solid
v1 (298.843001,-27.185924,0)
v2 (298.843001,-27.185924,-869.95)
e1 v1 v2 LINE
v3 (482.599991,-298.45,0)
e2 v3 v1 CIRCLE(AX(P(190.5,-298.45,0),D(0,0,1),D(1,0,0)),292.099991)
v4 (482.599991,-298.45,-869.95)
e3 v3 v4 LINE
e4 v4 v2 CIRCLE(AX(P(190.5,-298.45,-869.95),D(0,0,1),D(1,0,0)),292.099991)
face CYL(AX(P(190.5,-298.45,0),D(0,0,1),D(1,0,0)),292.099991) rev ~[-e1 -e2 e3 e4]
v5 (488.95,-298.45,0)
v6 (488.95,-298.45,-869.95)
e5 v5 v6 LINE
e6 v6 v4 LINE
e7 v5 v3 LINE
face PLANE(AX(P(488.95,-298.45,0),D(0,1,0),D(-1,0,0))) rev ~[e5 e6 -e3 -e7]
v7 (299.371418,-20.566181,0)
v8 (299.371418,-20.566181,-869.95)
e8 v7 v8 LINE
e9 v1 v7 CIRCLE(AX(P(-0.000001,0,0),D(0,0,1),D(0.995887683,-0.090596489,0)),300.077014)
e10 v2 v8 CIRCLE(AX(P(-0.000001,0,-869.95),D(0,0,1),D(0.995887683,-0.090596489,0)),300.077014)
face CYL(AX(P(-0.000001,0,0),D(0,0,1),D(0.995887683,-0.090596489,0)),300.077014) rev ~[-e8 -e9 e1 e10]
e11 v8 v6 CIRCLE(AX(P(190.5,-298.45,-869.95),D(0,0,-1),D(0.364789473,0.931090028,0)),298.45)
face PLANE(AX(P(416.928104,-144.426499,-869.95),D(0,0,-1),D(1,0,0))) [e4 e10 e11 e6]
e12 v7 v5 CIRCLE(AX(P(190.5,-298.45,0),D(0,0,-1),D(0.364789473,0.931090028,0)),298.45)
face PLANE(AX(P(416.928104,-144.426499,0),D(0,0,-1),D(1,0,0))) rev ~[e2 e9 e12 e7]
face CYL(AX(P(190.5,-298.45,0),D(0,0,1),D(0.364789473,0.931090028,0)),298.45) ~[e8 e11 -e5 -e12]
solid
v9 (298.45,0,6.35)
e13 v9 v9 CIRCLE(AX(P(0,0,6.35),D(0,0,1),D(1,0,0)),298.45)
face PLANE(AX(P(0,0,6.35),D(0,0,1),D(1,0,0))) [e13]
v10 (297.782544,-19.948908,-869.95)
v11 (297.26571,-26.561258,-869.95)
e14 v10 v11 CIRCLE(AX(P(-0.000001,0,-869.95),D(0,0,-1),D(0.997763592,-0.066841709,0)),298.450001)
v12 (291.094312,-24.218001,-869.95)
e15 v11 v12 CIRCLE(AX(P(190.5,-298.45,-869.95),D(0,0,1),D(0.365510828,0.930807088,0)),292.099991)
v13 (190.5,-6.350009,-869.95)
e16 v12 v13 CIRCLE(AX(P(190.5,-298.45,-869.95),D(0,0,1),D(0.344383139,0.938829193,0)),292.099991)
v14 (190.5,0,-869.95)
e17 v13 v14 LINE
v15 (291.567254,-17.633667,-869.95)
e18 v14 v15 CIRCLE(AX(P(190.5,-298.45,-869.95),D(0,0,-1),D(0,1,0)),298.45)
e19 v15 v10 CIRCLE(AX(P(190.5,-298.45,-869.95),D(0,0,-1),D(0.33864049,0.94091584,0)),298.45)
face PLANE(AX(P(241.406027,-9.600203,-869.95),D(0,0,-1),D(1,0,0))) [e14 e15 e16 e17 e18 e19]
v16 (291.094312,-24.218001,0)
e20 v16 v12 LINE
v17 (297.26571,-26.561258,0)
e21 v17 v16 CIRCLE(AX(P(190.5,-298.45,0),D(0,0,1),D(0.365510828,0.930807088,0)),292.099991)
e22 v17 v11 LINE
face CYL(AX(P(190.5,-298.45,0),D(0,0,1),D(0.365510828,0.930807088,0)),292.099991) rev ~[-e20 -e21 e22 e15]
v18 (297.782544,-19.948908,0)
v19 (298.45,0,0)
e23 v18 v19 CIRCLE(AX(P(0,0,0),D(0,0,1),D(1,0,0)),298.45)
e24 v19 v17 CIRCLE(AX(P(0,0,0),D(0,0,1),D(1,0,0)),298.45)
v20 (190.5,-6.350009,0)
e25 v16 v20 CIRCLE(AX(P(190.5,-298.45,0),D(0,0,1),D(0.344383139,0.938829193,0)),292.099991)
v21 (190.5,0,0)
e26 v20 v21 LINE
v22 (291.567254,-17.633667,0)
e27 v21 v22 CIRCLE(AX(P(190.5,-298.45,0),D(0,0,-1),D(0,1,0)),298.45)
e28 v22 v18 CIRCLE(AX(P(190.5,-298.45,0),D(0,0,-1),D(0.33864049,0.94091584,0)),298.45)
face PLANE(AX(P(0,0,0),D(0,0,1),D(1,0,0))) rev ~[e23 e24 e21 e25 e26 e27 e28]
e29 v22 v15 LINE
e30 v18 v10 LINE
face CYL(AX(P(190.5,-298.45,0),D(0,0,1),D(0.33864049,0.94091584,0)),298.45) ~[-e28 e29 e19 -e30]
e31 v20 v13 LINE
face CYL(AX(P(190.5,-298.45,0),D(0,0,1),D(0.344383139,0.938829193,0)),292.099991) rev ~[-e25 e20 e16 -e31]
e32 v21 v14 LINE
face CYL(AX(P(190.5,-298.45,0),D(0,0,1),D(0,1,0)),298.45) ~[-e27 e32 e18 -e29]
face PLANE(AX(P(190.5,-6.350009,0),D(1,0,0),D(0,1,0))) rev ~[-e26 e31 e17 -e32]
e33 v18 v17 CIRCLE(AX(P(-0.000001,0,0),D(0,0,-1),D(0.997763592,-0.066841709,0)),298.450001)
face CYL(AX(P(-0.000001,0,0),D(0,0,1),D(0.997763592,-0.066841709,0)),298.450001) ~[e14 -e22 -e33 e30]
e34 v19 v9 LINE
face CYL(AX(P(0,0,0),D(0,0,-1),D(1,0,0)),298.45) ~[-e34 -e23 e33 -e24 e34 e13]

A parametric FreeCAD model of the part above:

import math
import FreeCAD as App
import Part
import Sketcher
from FreeCAD import Vector
Q = App.Units.Quantity

doc = App.newDocument("Part")
params = doc.addObject("Spreadsheet::Sheet", "Params")
for row, (alias, value) in enumerate([
    ("sketch1_diameter", "23.5 in"),
    ("pad1_length", "0.25 in"),
    ("sketch2_radius", "11.75 in"),
    ("pad2_length", "34.25 in"),
    ("sketch3_radius", "11.75 in"),
    ("pad3_length", "34.25 in"),
], start=1):
    params.set(f"A{row}", alias)
    params.set(f"B{row}", "=" + value)
    params.setAlias(f"B{row}", alias)

body = doc.addObject("PartDesign::Body", "Body")

sketch1 = body.newObject("Sketcher::SketchObject", "Sketch")
sketch1.AttachmentSupport = (doc.getObject("XY_Plane"), [""])
sketch1.MapMode = "FlatFace"
sketch1.addGeometry(Part.Circle(Vector(0, 0, 0), Vector(0, 0, 1), 298), False)
sketch1.addConstraint(Sketcher.Constraint("Coincident", 0, 3, -1, 1))
sketch1.addConstraint(Sketcher.Constraint("Diameter", 0, Q("23.5 in")))
sketch1.setExpression("Constraints[1]", "Params.sketch1_diameter")
pad1 = body.newObject("PartDesign::Pad", "Pad")
pad1.Profile = sketch1
pad1.setExpression("Length", "Params.pad1_length")

sketch2 = body.newObject("Sketcher::SketchObject", "Sketch001")
sketch2.AttachmentSupport = (doc.getObject("XY_Plane"), [""])
sketch2.MapMode = "FlatFace"
sketch2.addGeometry(Part.LineSegment(Vector(190, -6, 0), Vector(190, 0, 0)), False)
sketch2.addGeometry(Part.ArcOfCircle(Part.Circle(Vector(190, -298, 0), Vector(0, 0, 1), 298), math.radians(70.21), math.radians(90)), False)
sketch2.addGeometry(Part.ArcOfCircle(Part.Circle(Vector(190, -298, 0), Vector(0, 0, 1), 298), math.radians(68.93), math.radians(70.21)), False)
sketch2.addGeometry(Part.ArcOfCircle(Part.Circle(Vector(0, 0, 0), Vector(0, 0, 1), 298), math.radians(-5.11), math.radians(-3.83)), False)
sketch2.addGeometry(Part.ArcOfCircle(Part.Circle(Vector(190, -298, 0), Vector(0, 0, 1), 292), math.radians(68.56), math.radians(69.86)), False)
sketch2.addGeometry(Part.ArcOfCircle(Part.Circle(Vector(190, -298, 0), Vector(0, 0, 1), 292), math.radians(70), math.radians(90)), False)
sketch2.addConstraint(Sketcher.Constraint("Coincident", 0, 2, 1, 2))
sketch2.addConstraint(Sketcher.Constraint("Tangent", 1, 1, 2, 2))
sketch2.addConstraint(Sketcher.Constraint("Coincident", 2, 1, 3, 2))
sketch2.addConstraint(Sketcher.Constraint("Coincident", 3, 1, 4, 1))
sketch2.addConstraint(Sketcher.Constraint("Tangent", 4, 2, 5, 1))
sketch2.addConstraint(Sketcher.Constraint("Coincident", 5, 2, 0, 1))
sketch2.addConstraint(Sketcher.Constraint("Vertical", 0))
sketch2.addConstraint(Sketcher.Constraint("Coincident", 3, 3, -1, 1))
sketch2.addConstraint(Sketcher.Constraint("Coincident", 4, 3, 1, 3))
sketch2.addConstraint(Sketcher.Constraint("Equal", 1, 2))
sketch2.addConstraint(Sketcher.Constraint("Equal", 2, 3))
sketch2.addConstraint(Sketcher.Constraint("Equal", 4, 5))
sketch2.addConstraint(Sketcher.Constraint("PointOnObject", 0, 2, -1))
sketch2.addConstraint(Sketcher.Constraint("Vertical", 5, 3, 0, 2))
sketch2.addConstraint(Sketcher.Constraint("Radius", 1, Q("11.75 in")))
sketch2.addConstraint(Sketcher.Constraint("DistanceX", -1, 1, 1, 3, Q("7.5 in")))
sketch2.addConstraint(Sketcher.Constraint("Radius", 4, Q("292.099991 mm")))
sketch2.addConstraint(Sketcher.Constraint("DistanceY", 4, 2, -1, 1, Q("24.218001 mm")))
sketch2.addConstraint(Sketcher.Constraint("DistanceX", 1, 1, 2, 1, Q("6.21529 mm")))
sketch2.setExpression("Constraints[14]", "Params.sketch2_radius")
pad2 = body.newObject("PartDesign::Pad", "Pad001")
pad2.Profile = sketch2
pad2.setExpression("Length", "Params.pad2_length")
pad2.Reversed = True
body2 = doc.addObject("PartDesign::Body", "Body001")

sketch3 = body2.newObject("Sketcher::SketchObject", "Sketch002")
sketch3.AttachmentSupport = (doc.getObject("XY_Plane001"), [""])
sketch3.MapMode = "FlatFace"
sketch3.addGeometry(Part.ArcOfCircle(Part.Circle(Vector(0, 0, 0), Vector(0, 0, 1), 300), math.radians(-5.2), math.radians(-3.93)), False)
sketch3.addGeometry(Part.ArcOfCircle(Part.Circle(Vector(190, -298, 0), Vector(0, 0, 1), 298), math.radians(0), math.radians(69)), False)
sketch3.addGeometry(Part.LineSegment(Vector(489, -298, 0), Vector(483, -298, 0)), False)
sketch3.addGeometry(Part.ArcOfCircle(Part.Circle(Vector(190, -298, 0), Vector(0, 0, 1), 292), math.radians(0), math.radians(68)), False)
sketch3.addConstraint(Sketcher.Constraint("Coincident", 0, 2, 1, 2))
sketch3.addConstraint(Sketcher.Constraint("Coincident", 1, 1, 2, 1))
sketch3.addConstraint(Sketcher.Constraint("Coincident", 2, 2, 3, 1))
sketch3.addConstraint(Sketcher.Constraint("Coincident", 3, 2, 0, 1))
sketch3.addConstraint(Sketcher.Constraint("Horizontal", 2))
sketch3.addConstraint(Sketcher.Constraint("Coincident", 0, 3, -1, 1))
sketch3.addConstraint(Sketcher.Constraint("Coincident", 3, 3, 1, 3))
sketch3.addConstraint(Sketcher.Constraint("Horizontal", 3, 3, 1, 1))
sketch3.addConstraint(Sketcher.Constraint("Radius", 1, Q("11.75 in")))
sketch3.addConstraint(Sketcher.Constraint("DistanceX", -1, 1, 1, 3, Q("7.5 in")))
sketch3.addConstraint(Sketcher.Constraint("DistanceY", 1, 3, -1, 1, Q("11.75 in")))
sketch3.addConstraint(Sketcher.Constraint("Radius", 3, Q("292.099991 mm")))
sketch3.addConstraint(Sketcher.Constraint("Radius", 0, Q("300.077014 mm")))
sketch3.setExpression("Constraints[8]", "Params.sketch3_radius")
pad3 = body2.newObject("PartDesign::Pad", "Pad002")
pad3.Profile = sketch3
pad3.setExpression("Length", "Params.pad3_length")
pad3.Reversed = True

doc.recompute()
